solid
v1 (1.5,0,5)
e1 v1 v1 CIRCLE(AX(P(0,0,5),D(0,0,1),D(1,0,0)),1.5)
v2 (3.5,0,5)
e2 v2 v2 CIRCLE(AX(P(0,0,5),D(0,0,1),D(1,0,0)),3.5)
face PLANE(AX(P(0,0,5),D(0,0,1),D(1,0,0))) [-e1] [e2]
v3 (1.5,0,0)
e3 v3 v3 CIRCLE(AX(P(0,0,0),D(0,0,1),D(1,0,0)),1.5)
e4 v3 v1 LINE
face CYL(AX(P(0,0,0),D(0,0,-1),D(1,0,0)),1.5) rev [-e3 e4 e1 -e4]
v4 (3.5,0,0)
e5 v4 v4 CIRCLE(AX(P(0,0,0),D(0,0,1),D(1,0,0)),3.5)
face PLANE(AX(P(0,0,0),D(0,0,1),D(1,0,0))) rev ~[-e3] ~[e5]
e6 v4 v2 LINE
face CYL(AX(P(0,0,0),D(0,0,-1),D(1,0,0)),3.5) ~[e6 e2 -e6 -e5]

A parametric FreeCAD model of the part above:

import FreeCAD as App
import Part
import Sketcher
from FreeCAD import Vector
Q = App.Units.Quantity

doc = App.newDocument("Part")
body = doc.addObject("PartDesign::Body", "Body")

# Sketch on XY plane
sketch1 = body.newObject("Sketcher::SketchObject", "Sketch")
sketch1.AttachmentSupport = (doc.getObject("XY_Plane"), [""])
sketch1.MapMode = "FlatFace"
sketch1.addGeometry([
    Part.Circle(Vector(0, 0, 0), Vector(0, 0, 1), 3.5),
    Part.Circle(Vector(0, 0, 0), Vector(0, 0, 1), 1.5),
], False)
sketch1.addConstraint([
    Sketcher.Constraint("Coincident", 0, 3, -1, 1),
    Sketcher.Constraint("Coincident", 1, 3, -1, 1),
    Sketcher.Constraint("Diameter", 1, Q("3 mm")),
    Sketcher.Constraint("Diameter", 0, Q("7 mm")),
])
pad1 = body.newObject("PartDesign::Pad", "Pad")
pad1.Profile = sketch1
pad1.Length = 5

doc.recompute()
